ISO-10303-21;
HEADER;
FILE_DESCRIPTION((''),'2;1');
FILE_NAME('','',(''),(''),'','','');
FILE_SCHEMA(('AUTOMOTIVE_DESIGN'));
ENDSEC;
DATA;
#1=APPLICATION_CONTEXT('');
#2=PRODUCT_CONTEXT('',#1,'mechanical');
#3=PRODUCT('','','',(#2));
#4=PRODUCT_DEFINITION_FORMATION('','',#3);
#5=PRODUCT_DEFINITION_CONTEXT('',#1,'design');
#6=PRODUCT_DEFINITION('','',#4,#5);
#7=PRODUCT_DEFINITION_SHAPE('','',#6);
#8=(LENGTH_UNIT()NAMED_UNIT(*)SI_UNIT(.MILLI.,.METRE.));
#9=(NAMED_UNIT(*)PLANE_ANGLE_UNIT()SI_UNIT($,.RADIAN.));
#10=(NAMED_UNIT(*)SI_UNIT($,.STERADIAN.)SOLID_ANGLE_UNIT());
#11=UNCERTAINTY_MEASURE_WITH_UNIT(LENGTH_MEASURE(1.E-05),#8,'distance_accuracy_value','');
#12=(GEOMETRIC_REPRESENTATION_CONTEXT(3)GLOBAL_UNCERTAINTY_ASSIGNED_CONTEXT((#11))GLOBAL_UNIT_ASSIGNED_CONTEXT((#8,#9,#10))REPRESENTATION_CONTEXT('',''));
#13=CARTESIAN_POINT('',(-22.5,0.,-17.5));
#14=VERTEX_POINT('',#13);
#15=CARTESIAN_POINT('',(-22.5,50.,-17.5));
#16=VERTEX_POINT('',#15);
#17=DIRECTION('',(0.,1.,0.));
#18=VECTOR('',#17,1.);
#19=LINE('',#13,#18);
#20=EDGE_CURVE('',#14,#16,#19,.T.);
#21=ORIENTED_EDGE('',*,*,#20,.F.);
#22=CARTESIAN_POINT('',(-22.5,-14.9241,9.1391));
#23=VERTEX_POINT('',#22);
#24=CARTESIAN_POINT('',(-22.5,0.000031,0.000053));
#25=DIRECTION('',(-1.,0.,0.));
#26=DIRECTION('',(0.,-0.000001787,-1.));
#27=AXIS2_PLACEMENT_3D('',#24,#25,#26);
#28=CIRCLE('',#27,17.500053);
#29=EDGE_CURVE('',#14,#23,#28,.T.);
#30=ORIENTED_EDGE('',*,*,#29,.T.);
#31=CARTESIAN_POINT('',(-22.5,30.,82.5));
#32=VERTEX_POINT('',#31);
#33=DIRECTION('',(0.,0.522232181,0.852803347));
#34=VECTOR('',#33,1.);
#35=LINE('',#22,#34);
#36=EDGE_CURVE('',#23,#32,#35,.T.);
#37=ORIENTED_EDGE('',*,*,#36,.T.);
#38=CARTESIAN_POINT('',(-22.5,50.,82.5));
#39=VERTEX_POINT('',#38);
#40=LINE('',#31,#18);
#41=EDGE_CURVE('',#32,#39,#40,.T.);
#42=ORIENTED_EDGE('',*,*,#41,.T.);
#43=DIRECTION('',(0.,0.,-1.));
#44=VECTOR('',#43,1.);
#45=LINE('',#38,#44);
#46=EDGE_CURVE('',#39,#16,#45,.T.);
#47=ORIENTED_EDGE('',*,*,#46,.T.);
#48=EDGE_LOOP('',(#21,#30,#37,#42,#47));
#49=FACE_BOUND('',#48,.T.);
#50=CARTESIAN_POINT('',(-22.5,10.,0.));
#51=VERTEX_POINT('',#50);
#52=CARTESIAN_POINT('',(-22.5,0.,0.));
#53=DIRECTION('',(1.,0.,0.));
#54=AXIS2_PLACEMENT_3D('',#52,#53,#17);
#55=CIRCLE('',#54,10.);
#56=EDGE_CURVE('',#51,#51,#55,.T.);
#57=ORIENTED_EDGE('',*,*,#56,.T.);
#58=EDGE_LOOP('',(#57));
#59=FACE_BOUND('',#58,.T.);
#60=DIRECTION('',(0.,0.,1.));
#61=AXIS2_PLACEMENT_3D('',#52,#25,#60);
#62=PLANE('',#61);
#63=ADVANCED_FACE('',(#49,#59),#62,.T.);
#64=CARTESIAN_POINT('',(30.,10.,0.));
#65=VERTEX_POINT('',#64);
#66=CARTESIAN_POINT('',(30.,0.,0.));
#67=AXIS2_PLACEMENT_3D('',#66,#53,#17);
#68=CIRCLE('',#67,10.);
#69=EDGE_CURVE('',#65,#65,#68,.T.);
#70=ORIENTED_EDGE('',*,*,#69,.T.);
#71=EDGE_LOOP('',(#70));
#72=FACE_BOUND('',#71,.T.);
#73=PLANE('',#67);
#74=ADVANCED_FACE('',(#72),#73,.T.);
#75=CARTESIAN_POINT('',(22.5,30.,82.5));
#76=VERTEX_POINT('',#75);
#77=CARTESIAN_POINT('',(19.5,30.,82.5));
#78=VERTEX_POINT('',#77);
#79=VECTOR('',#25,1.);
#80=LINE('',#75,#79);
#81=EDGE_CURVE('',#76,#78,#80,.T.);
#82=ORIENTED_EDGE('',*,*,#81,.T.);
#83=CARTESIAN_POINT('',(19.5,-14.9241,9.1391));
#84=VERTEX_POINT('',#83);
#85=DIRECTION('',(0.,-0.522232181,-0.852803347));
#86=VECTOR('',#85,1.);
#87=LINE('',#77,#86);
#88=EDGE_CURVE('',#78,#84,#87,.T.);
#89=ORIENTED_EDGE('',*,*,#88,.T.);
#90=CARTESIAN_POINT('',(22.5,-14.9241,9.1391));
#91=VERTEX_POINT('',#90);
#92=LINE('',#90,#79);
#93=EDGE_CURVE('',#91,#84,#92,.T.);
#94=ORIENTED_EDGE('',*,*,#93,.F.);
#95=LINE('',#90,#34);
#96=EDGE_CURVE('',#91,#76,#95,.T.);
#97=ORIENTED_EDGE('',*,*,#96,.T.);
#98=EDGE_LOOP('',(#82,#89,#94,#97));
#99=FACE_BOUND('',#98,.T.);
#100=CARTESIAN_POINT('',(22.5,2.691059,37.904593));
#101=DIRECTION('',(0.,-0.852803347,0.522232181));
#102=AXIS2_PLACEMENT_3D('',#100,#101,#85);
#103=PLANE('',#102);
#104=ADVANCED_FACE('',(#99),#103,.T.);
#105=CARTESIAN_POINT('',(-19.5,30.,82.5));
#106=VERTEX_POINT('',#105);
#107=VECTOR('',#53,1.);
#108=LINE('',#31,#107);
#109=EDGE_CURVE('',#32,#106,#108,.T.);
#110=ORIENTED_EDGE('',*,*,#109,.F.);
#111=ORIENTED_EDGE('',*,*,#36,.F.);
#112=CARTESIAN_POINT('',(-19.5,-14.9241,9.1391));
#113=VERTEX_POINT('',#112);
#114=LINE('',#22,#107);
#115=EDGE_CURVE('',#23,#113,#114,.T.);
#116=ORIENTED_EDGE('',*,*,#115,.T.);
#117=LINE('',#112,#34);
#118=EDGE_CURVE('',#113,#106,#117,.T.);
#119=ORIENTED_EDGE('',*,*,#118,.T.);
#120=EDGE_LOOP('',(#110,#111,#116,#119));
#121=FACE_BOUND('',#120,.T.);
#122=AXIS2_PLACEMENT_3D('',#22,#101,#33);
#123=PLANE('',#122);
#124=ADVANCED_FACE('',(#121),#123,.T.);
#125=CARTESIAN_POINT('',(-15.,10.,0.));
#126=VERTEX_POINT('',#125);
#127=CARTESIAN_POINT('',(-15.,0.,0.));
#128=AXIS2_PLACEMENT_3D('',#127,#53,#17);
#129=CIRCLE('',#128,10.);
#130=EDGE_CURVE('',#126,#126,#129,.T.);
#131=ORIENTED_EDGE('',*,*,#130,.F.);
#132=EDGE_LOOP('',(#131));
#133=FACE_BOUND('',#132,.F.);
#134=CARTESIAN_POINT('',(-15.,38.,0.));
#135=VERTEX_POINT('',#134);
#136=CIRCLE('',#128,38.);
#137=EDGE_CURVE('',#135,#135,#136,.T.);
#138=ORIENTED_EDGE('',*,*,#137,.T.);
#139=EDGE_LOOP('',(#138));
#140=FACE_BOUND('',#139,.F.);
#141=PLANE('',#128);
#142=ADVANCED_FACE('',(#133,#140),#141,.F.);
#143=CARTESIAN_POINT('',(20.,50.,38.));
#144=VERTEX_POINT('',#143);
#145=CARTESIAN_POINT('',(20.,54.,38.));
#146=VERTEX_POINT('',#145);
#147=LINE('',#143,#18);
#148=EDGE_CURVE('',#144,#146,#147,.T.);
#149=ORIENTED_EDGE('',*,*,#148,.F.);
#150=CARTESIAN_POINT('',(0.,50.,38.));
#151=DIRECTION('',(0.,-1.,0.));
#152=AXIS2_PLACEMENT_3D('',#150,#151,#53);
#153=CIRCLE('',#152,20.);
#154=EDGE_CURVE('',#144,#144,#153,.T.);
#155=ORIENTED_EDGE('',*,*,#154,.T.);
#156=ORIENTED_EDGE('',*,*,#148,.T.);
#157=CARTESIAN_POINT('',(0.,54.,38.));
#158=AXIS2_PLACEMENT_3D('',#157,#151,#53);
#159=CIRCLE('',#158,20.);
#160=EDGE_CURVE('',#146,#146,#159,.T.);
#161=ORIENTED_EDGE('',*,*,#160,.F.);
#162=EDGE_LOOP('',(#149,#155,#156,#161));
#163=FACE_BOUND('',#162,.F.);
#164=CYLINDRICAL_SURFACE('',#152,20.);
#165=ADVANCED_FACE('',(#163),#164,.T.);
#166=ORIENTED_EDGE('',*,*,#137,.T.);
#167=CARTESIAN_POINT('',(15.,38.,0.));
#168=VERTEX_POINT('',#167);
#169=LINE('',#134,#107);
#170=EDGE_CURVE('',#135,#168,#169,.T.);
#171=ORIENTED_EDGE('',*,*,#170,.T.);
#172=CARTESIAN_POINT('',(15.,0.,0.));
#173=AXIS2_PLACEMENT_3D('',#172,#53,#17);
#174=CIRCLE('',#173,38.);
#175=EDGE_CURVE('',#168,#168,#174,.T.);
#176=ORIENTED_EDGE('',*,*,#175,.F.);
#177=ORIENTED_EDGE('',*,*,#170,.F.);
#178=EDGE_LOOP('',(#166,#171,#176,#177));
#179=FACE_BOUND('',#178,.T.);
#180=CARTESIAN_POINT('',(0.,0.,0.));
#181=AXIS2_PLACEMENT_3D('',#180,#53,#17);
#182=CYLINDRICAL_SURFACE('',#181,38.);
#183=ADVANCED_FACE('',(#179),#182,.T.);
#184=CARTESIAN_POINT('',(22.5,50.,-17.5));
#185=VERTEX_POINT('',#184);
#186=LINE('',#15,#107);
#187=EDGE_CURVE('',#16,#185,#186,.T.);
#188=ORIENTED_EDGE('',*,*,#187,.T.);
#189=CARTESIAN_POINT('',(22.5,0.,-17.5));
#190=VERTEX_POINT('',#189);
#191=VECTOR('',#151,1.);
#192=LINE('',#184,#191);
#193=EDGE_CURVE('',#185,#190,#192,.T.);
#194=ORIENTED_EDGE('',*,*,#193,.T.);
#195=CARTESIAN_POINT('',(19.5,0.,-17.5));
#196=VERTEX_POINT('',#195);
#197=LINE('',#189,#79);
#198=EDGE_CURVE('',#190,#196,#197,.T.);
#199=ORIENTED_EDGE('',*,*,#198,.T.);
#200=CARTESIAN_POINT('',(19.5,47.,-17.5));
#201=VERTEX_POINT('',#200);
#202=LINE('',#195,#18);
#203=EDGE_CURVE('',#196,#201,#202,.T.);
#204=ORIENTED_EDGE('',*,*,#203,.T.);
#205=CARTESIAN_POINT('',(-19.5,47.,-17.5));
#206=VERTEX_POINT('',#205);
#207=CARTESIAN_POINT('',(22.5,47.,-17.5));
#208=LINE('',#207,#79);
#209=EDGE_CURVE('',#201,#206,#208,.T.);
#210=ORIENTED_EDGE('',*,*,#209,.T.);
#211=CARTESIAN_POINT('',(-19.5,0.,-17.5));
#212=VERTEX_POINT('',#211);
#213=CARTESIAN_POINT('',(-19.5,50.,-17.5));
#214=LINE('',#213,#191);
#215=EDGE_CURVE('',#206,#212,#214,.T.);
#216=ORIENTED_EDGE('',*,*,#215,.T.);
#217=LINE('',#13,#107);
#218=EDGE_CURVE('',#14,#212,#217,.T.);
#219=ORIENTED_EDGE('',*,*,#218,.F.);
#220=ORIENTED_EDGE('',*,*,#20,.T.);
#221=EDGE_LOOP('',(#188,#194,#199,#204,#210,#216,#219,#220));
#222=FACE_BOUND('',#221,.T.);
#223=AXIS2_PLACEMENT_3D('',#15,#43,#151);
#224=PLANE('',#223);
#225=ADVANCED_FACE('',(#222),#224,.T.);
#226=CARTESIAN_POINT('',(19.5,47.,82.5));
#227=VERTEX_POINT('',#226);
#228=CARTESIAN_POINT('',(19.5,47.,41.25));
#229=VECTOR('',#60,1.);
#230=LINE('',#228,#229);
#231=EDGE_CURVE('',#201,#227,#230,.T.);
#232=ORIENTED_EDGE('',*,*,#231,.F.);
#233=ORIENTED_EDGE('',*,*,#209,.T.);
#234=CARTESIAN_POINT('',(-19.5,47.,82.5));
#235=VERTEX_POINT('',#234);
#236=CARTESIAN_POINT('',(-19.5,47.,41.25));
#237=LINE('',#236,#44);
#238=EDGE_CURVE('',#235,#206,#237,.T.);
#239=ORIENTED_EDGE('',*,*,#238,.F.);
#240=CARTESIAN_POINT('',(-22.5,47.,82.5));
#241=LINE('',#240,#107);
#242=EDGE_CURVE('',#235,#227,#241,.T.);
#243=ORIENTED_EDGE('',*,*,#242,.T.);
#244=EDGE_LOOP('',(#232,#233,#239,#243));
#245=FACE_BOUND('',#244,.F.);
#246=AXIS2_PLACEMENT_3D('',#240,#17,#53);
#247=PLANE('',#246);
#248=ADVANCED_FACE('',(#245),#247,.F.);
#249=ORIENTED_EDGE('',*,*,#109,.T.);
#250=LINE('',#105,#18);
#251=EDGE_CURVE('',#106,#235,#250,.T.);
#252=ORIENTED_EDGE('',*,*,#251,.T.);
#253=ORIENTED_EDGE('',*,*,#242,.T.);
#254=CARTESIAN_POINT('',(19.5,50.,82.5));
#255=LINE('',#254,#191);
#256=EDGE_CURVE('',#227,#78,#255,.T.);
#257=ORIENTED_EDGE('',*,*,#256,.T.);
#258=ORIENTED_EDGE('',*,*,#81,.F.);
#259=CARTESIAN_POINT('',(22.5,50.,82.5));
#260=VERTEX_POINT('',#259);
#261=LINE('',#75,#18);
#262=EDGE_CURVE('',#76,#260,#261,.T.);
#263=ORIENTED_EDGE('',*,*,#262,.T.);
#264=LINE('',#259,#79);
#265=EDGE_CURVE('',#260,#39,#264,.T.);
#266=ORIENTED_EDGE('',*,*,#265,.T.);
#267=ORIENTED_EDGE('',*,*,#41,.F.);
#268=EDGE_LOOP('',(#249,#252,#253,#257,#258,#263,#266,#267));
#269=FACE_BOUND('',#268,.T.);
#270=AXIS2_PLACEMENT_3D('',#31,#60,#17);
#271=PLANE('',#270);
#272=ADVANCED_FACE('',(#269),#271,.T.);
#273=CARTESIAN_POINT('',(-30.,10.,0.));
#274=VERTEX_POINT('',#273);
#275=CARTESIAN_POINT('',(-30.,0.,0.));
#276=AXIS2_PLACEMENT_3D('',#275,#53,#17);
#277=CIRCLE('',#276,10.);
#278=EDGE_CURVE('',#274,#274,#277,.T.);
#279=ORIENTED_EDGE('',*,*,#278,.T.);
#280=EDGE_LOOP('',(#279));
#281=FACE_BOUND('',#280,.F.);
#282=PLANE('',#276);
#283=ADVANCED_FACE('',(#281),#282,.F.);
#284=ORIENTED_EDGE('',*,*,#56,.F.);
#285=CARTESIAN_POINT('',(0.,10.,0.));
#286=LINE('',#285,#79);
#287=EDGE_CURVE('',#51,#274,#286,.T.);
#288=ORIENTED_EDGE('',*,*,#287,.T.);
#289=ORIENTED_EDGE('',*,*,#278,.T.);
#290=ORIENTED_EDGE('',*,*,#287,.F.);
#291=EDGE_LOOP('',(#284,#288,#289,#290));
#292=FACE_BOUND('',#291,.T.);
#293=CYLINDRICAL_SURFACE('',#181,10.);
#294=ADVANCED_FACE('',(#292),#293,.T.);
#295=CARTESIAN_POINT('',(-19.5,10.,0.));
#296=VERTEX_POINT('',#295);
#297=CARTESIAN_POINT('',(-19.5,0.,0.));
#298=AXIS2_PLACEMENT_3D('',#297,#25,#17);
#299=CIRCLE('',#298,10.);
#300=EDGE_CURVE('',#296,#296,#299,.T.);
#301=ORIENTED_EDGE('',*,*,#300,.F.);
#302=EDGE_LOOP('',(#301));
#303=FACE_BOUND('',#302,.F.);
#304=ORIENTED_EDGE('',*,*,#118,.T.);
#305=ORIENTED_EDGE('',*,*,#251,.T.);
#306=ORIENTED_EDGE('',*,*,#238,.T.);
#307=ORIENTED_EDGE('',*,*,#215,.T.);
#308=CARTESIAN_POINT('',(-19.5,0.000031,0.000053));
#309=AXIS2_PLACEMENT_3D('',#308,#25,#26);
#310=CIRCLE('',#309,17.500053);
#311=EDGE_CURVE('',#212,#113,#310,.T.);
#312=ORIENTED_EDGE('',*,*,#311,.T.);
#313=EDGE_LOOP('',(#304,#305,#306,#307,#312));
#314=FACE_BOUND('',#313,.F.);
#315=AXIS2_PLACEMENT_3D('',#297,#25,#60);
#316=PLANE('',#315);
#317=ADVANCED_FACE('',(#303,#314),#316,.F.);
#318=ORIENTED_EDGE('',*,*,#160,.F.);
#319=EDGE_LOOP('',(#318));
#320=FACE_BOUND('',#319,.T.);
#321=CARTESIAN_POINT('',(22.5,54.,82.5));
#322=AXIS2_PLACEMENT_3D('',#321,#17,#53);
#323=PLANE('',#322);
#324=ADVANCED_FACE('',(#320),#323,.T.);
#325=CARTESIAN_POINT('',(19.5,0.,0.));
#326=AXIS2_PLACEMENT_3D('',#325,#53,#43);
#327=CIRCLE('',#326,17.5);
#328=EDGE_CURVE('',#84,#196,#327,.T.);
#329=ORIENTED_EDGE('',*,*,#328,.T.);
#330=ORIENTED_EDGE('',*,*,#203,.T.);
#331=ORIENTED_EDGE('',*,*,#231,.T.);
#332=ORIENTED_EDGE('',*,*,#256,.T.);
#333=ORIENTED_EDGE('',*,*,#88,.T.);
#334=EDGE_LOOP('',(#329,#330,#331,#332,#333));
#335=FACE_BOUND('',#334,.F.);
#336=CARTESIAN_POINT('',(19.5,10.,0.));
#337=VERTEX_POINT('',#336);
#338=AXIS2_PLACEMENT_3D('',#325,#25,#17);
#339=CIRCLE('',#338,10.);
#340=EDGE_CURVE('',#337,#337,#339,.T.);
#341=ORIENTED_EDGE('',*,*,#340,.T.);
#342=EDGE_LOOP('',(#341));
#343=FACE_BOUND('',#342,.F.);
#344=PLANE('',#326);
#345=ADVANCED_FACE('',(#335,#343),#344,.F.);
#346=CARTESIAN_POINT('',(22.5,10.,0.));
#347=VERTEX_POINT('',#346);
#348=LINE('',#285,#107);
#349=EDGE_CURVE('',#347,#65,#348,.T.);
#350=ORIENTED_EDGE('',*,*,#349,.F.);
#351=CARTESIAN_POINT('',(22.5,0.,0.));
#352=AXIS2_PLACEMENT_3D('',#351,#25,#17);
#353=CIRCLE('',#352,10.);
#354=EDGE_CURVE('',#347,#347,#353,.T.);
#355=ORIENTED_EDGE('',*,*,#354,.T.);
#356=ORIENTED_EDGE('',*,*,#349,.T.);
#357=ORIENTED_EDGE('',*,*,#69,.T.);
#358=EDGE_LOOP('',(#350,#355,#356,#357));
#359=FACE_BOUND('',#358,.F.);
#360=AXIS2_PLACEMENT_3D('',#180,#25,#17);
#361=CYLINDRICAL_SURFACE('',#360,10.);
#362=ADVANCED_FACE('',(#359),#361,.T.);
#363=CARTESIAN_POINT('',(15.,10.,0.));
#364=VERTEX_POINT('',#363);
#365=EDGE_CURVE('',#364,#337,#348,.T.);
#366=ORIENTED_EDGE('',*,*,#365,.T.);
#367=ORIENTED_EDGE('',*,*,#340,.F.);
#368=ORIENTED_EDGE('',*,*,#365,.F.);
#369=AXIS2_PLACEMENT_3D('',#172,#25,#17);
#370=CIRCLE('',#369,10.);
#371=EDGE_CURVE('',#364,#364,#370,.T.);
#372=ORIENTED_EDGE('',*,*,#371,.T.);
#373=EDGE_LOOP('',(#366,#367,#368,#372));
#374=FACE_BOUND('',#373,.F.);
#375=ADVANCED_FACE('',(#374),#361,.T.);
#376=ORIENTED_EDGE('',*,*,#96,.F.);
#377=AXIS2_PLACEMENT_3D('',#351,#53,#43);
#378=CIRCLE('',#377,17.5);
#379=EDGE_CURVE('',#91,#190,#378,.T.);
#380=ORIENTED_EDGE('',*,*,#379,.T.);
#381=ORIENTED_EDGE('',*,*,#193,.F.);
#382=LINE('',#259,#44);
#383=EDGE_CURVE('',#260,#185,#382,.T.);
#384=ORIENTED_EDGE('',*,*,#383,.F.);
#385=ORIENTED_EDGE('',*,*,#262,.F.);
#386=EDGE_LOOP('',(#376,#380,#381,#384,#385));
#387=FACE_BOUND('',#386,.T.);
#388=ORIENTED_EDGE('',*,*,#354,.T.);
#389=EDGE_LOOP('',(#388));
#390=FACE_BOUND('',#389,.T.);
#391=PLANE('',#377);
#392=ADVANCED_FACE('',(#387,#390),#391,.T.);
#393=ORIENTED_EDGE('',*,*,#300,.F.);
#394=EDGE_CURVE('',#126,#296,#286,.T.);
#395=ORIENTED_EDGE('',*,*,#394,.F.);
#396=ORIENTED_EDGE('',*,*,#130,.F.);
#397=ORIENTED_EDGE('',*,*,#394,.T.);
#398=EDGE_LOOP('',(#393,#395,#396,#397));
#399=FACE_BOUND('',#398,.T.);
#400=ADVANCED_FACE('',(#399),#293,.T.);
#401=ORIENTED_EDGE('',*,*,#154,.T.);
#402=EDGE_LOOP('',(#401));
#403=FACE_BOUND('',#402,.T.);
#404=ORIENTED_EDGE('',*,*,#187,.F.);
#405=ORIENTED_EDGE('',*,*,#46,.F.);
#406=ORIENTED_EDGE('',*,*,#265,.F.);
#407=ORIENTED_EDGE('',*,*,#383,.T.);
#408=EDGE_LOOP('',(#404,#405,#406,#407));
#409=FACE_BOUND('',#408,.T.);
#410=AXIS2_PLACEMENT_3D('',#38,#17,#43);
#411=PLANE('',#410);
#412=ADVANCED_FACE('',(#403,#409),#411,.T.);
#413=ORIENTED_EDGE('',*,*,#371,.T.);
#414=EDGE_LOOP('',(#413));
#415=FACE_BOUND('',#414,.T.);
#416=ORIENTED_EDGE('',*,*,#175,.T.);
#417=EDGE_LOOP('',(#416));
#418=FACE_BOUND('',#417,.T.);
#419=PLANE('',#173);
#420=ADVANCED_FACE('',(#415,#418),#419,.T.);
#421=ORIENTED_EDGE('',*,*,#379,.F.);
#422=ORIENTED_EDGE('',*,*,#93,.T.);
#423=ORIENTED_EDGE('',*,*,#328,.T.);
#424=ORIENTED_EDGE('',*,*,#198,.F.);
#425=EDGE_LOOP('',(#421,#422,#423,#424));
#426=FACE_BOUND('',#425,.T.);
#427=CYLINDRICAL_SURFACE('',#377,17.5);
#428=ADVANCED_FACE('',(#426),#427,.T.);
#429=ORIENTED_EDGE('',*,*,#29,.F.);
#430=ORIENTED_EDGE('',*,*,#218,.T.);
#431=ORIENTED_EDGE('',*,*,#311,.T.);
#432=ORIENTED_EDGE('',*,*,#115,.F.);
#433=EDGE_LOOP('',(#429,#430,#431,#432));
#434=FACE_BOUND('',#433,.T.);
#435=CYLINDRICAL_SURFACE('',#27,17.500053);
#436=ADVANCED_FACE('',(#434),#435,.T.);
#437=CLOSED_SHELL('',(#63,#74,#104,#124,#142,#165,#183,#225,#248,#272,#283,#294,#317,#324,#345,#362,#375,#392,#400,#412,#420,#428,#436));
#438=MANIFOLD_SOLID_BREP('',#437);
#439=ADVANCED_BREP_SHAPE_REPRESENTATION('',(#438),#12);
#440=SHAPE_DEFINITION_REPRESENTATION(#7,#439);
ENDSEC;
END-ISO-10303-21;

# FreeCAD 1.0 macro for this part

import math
import FreeCAD as App
import Part
import Sketcher

doc = App.newDocument("Part")
body = doc.addObject("PartDesign::Body", "Body")

sketch1 = doc.addObject("Sketcher::SketchObject", "Sketch")
body.addObject(sketch1)
sketch1.AttachmentSupport = (doc.YZ_Plane, [""])
sketch1.MapMode = "FlatFace"
sketch1.addGeometry(Part.Circle(App.Vector(0, 0, 0), App.Vector(0, 0, 1), 38), False)
sketch1.addConstraint([
    Sketcher.Constraint("Coincident", 0, 3, -1, 1),
    Sketcher.Constraint("Diameter", 0, 76.0),
])
pad1 = doc.addObject("PartDesign::Pad", "Pad")
body.addObject(pad1)
pad1.Profile = sketch1
pad1.Length = 30
pad1.Midplane = True

sketch2 = doc.addObject("Sketcher::SketchObject", "Sketch001")
body.addObject(sketch2)
sketch2.AttachmentSupport = (doc.YZ_Plane, [""])
sketch2.MapMode = "FlatFace"
sketch2.addGeometry(Part.Circle(App.Vector(0, 0, 0), App.Vector(0, 0, 1), 10), False)
sketch2.addConstraint([
    Sketcher.Constraint("Coincident", 0, 3, -1, 1),
    Sketcher.Constraint("Diameter", 0, 20.0),
])
pad2 = doc.addObject("PartDesign::Pad", "Pad001")
body.addObject(pad2)
pad2.Profile = sketch2
pad2.Length = 60
pad2.Midplane = True

sketch3 = doc.addObject("Sketcher::SketchObject", "Sketch002")
body.addObject(sketch3)
sketch3.AttachmentSupport = (doc.YZ_Plane, [""])
sketch3.MapMode = "FlatFace"
sketch3.AttachmentOffset = App.Placement(App.Vector(0, 0, 22.5), App.Rotation())
sketch3.addGeometry([
    Part.ArcOfCircle(Part.Circle(App.Vector(0, 0, 0), App.Vector(0, 0, 1), 17.5), math.radians(148.517867), math.radians(270)),
    Part.LineSegment(App.Vector(0, -17.5, 0), App.Vector(50, -17.5, 0)),
    Part.LineSegment(App.Vector(50, -17.5, 0), App.Vector(50, 82.5, 0)),
    Part.LineSegment(App.Vector(50, 82.5, 0), App.Vector(30, 82.5, 0)),
    Part.LineSegment(App.Vector(30, 82.5, 0), App.Vector(-14.9241, 9.1391, 0)),
    Part.Circle(App.Vector(0, 0, 0), App.Vector(0, 0, 1), 10),
], False)
sketch3.addConstraint([
    Sketcher.Constraint("Tangent", 0, 2, 1, 1),
    Sketcher.Constraint("Coincident", 1, 2, 2, 1),
    Sketcher.Constraint("Coincident", 2, 2, 3, 1),
    Sketcher.Constraint("Coincident", 3, 2, 4, 1),
    Sketcher.Constraint("Tangent", 4, 2, 0, 1),
    Sketcher.Constraint("Horizontal", 1),
    Sketcher.Constraint("Vertical", 2),
    Sketcher.Constraint("Horizontal", 3),
    Sketcher.Constraint("Coincident", 0, 3, -1, 1),
    Sketcher.Constraint("Coincident", 5, 3, -1, 1),
    Sketcher.Constraint("Diameter", 5, 20.0),
    Sketcher.Constraint("Radius", 0, 17.5),
    Sketcher.Constraint("DistanceX", 1, 1, 1, 2, 50.0),
    Sketcher.Constraint("DistanceX", 3, 2, 3, 1, 20.0),
    Sketcher.Constraint("DistanceY", 2, 1, 2, 2, 100.0),
])
pad3 = doc.addObject("PartDesign::Pad", "Pad002")
body.addObject(pad3)
pad3.Profile = sketch3
pad3.Length = 3
pad3.Reversed = True

sketch4 = doc.addObject("Sketcher::SketchObject", "Sketch003")
body.addObject(sketch4)
sketch4.AttachmentSupport = (doc.YZ_Plane, [""])
sketch4.MapMode = "FlatFace"
sketch4.AttachmentOffset = App.Placement(App.Vector(0, 0, -22.5), App.Rotation())
sketch4.addGeometry([
    Part.ArcOfCircle(Part.Circle(App.Vector(0, 0, 0), App.Vector(0, 0, 1), 17.5), math.radians(148.517867), math.radians(270)),
    Part.LineSegment(App.Vector(-14.9241, 9.1391, 0), App.Vector(30, 82.5, 0)),
    Part.LineSegment(App.Vector(30, 82.5, 0), App.Vector(50, 82.5, 0)),
    Part.LineSegment(App.Vector(50, 82.5, 0), App.Vector(50, -17.5, 0)),
    Part.LineSegment(App.Vector(50, -17.5, 0), App.Vector(0, -17.5, 0)),
    Part.Circle(App.Vector(0, 0, 0), App.Vector(0, 0, 1), 10),
], False)
sketch4.addConstraint([
    Sketcher.Constraint("Tangent", 0, 1, 1, 1),
    Sketcher.Constraint("Coincident", 1, 2, 2, 1),
    Sketcher.Constraint("Coincident", 2, 2, 3, 1),
    Sketcher.Constraint("Coincident", 3, 2, 4, 1),
    Sketcher.Constraint("Tangent", 4, 2, 0, 2),
    Sketcher.Constraint("Horizontal", 2),
    Sketcher.Constraint("Vertical", 3),
    Sketcher.Constraint("Horizontal", 4),
    Sketcher.Constraint("Coincident", 0, 3, -1, 1),
    Sketcher.Constraint("Coincident", 5, 3, -1, 1),
    Sketcher.Constraint("Diameter", 5, 20.0),
    Sketcher.Constraint("Radius", 0, 17.5),
    Sketcher.Constraint("DistanceX", 2, 1, 2, 2, 20.0),
    Sketcher.Constraint("DistanceX", 4, 2, 4, 1, 50.0),
    Sketcher.Constraint("DistanceY", 3, 2, 3, 1, 100.0),
])
pad4 = doc.addObject("PartDesign::Pad", "Pad003")
body.addObject(pad4)
pad4.Profile = sketch4
pad4.Length = 3

sketch5 = doc.addObject("Sketcher::SketchObject", "Sketch004")
body.addObject(sketch5)
sketch5.AttachmentSupport = (doc.XZ_Plane, [""])
sketch5.MapMode = "FlatFace"
sketch5.AttachmentOffset = App.Placement(App.Vector(0, 0, -50), App.Rotation())
sketch5.addGeometry([
    Part.LineSegment(App.Vector(-22.5, -17.5, 0), App.Vector(-22.5, 82.5, 0)),
    Part.LineSegment(App.Vector(-22.5, 82.5, 0), App.Vector(22.5, 82.5, 0)),
    Part.LineSegment(App.Vector(22.5, 82.5, 0), App.Vector(22.5, -17.5, 0)),
    Part.LineSegment(App.Vector(22.5, -17.5, 0), App.Vector(-22.5, -17.5, 0)),
], False)
sketch5.addConstraint([
    Sketcher.Constraint("Coincident", 0, 2, 1, 1),
    Sketcher.Constraint("Coincident", 1, 2, 2, 1),
    Sketcher.Constraint("Coincident", 2, 2, 3, 1),
    Sketcher.Constraint("Coincident", 3, 2, 0, 1),
    Sketcher.Constraint("Vertical", 0),
    Sketcher.Constraint("Horizontal", 1),
    Sketcher.Constraint("Vertical", 2),
    Sketcher.Constraint("Horizontal", 3),
    Sketcher.Constraint("DistanceX", 1, 1, 1, 2, 45.0),
    Sketcher.Constraint("DistanceY", 0, 1, 0, 2, 100.0),
    Sketcher.Constraint("DistanceX", 0, 2, -1, 1, 22.5),
    Sketcher.Constraint("DistanceY", -1, 1, 0, 2, 82.5),
])
pad5 = doc.addObject("PartDesign::Pad", "Pad004")
body.addObject(pad5)
pad5.Profile = sketch5
pad5.Length = 3

sketch6 = doc.addObject("Sketcher::SketchObject", "Sketch005")
body.addObject(sketch6)
sketch6.AttachmentSupport = (doc.XZ_Plane, [""])
sketch6.MapMode = "FlatFace"
sketch6.AttachmentOffset = App.Placement(App.Vector(0, 0, -50), App.Rotation())
sketch6.addGeometry(Part.Circle(App.Vector(0, 38, 0), App.Vector(0, 0, 1), 20), False)
sketch6.addConstraint([
    Sketcher.Constraint("PointOnObject", 0, 3, -2),
    Sketcher.Constraint("Diameter", 0, 40.0),
    Sketcher.Constraint("DistanceY", -1, 1, 0, 3, 38.0),
])
pad6 = doc.addObject("PartDesign::Pad", "Pad005")
body.addObject(pad6)
pad6.Profile = sketch6
pad6.Length = 4
pad6.Reversed = True

doc.recompute()
